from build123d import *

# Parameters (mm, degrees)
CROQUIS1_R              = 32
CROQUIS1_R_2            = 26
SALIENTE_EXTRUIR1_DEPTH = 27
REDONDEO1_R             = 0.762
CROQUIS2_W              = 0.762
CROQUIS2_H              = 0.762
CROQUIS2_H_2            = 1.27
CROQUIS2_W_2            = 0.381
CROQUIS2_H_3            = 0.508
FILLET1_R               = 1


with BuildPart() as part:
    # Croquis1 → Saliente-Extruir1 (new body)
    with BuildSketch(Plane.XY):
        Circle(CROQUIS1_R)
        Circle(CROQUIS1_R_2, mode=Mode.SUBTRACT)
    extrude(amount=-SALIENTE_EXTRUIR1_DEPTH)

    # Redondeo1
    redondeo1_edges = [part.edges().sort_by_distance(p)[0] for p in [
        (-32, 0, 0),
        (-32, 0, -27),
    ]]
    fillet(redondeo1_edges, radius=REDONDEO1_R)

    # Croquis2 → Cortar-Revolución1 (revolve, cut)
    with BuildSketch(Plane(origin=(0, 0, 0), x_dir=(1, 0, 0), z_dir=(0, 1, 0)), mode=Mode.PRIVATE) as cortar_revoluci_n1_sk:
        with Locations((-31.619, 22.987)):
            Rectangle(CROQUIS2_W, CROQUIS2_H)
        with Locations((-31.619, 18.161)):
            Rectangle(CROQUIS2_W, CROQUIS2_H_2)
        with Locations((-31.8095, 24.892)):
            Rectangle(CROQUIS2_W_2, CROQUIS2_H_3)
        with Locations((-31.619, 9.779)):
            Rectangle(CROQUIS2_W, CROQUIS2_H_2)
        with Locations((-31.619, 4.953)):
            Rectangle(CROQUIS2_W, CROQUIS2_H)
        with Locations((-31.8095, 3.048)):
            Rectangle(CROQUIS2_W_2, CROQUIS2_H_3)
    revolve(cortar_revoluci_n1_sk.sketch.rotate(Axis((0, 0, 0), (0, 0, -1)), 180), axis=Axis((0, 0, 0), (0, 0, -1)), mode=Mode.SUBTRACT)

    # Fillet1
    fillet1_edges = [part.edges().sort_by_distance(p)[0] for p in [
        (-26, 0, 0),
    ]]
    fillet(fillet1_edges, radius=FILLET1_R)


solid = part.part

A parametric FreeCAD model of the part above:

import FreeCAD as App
import Part
import Sketcher
from FreeCAD import Vector
Q = App.Units.Quantity


def edges_at(feature, points):
    """Names of the edges that pass closest to the given points."""
    edges = feature.Shape.Edges
    near = lambda p: min(range(len(edges)), key=lambda i: edges[i].distToShape(Part.Vertex(*p))[0])
    return sorted({f"Edge{near(p) + 1}" for p in points})

doc = App.newDocument("Part")
params = doc.addObject("Spreadsheet::Sheet", "Params")
for row, (alias, value) in enumerate([
    ("sketch1_diameter", "64 mm"),
    ("sketch1_diameter2", "52 mm"),
    ("pad1_length", "27 mm"),
    ("fillet_radius", "0.762 mm"),
    ("sketch2_height", "1.27 mm"),
    ("groove_angle", "360 deg"),
    ("fillet2_radius", "1 mm"),
], start=1):
    params.set(f"A{row}", alias)
    params.set(f"B{row}", "=" + value)
    params.setAlias(f"B{row}", alias)

body = doc.addObject("PartDesign::Body", "Body")

sketch1 = body.newObject("Sketcher::SketchObject", "Sketch")
sketch1.AttachmentSupport = (doc.getObject("XY_Plane"), [""])
sketch1.MapMode = "FlatFace"
sketch1.addGeometry(Part.Circle(Vector(0, 0, 0), Vector(0, 0, 1), 32), False)
sketch1.addGeometry(Part.Circle(Vector(0, 0, 0), Vector(0, 0, 1), 26), False)
sketch1.addConstraint(Sketcher.Constraint("Coincident", 0, 3, -1, 1))
sketch1.addConstraint(Sketcher.Constraint("Coincident", 1, 3, -1, 1))
sketch1.addConstraint(Sketcher.Constraint("Diameter", 0, Q("64 mm")))
sketch1.addConstraint(Sketcher.Constraint("Diameter", 1, Q("52 mm")))
sketch1.setExpression("Constraints[2]", "Params.sketch1_diameter")
sketch1.setExpression("Constraints[3]", "Params.sketch1_diameter2")
pad1 = body.newObject("PartDesign::Pad", "Pad")
pad1.Profile = sketch1
pad1.setExpression("Length", "Params.pad1_length")
pad1.Reversed = True
doc.recompute()

fillet = body.newObject("PartDesign::Fillet", "Fillet")
fillet.Base = (pad1, edges_at(pad1, [(-32, 0, 0), (-32, 0, -27)]))
fillet.setExpression("Radius", "Params.fillet_radius")

sketch2 = body.newObject("Sketcher::SketchObject", "Sketch001")
sketch2.AttachmentSupport = (doc.getObject("XZ_Plane"), [""])
sketch2.MapMode = "FlatFace"
sketch2.addGeometry(Part.LineSegment(Vector(-32, -23.37, 0), Vector(-32, -22.61, 0)), False)
sketch2.addGeometry(Part.LineSegment(Vector(-32, -22.61, 0), Vector(-31.24, -22.61, 0)), False)
sketch2.addGeometry(Part.LineSegment(Vector(-31.24, -22.61, 0), Vector(-31.24, -23.37, 0)), False)
sketch2.addGeometry(Part.LineSegment(Vector(-31.24, -23.37, 0), Vector(-32, -23.37, 0)), False)
sketch2.addGeometry(Part.LineSegment(Vector(-32, -18.8, 0), Vector(-32, -17.53, 0)), False)
sketch2.addGeometry(Part.LineSegment(Vector(-32, -17.53, 0), Vector(-31.24, -17.53, 0)), False)
sketch2.addGeometry(Part.LineSegment(Vector(-31.24, -17.53, 0), Vector(-31.24, -18.8, 0)), False)
sketch2.addGeometry(Part.LineSegment(Vector(-31.24, -18.8, 0), Vector(-32, -18.8, 0)), False)
sketch2.addGeometry(Part.LineSegment(Vector(-32, -25.15, 0), Vector(-32, -24.64, 0)), False)
sketch2.addGeometry(Part.LineSegment(Vector(-32, -24.64, 0), Vector(-31.62, -24.64, 0)), False)
sketch2.addGeometry(Part.LineSegment(Vector(-31.62, -24.64, 0), Vector(-31.62, -25.15, 0)), False)
sketch2.addGeometry(Part.LineSegment(Vector(-31.62, -25.15, 0), Vector(-32, -25.15, 0)), False)
sketch2.addGeometry(Part.LineSegment(Vector(-32, -10.41, 0), Vector(-32, -9.14, 0)), False)
sketch2.addGeometry(Part.LineSegment(Vector(-32, -9.14, 0), Vector(-31.24, -9.14, 0)), False)
sketch2.addGeometry(Part.LineSegment(Vector(-31.24, -9.14, 0), Vector(-31.24, -10.41, 0)), False)
sketch2.addGeometry(Part.LineSegment(Vector(-31.24, -10.41, 0), Vector(-32, -10.41, 0)), False)
sketch2.addGeometry(Part.LineSegment(Vector(-32, -5.33, 0), Vector(-32, -4.57, 0)), False)
sketch2.addGeometry(Part.LineSegment(Vector(-32, -4.57, 0), Vector(-31.24, -4.57, 0)), False)
sketch2.addGeometry(Part.LineSegment(Vector(-31.24, -4.57, 0), Vector(-31.24, -5.33, 0)), False)
sketch2.addGeometry(Part.LineSegment(Vector(-31.24, -5.33, 0), Vector(-32, -5.33, 0)), False)
sketch2.addGeometry(Part.LineSegment(Vector(-32, -3.3, 0), Vector(-32, -2.79, 0)), False)
sketch2.addGeometry(Part.LineSegment(Vector(-32, -2.79, 0), Vector(-31.62, -2.79, 0)), False)
sketch2.addGeometry(Part.LineSegment(Vector(-31.62, -2.79, 0), Vector(-31.62, -3.3, 0)), False)
sketch2.addGeometry(Part.LineSegment(Vector(-31.62, -3.3, 0), Vector(-32, -3.3, 0)), False)
sketch2.addConstraint(Sketcher.Constraint("Coincident", 0, 2, 1, 1))
sketch2.addConstraint(Sketcher.Constraint("Coincident", 1, 2, 2, 1))
sketch2.addConstraint(Sketcher.Constraint("Coincident", 2, 2, 3, 1))
sketch2.addConstraint(Sketcher.Constraint("Coincident", 3, 2, 0, 1))
sketch2.addConstraint(Sketcher.Constraint("Coincident", 4, 2, 5, 1))
sketch2.addConstraint(Sketcher.Constraint("Coincident", 5, 2, 6, 1))
sketch2.addConstraint(Sketcher.Constraint("Coincident", 6, 2, 7, 1))
sketch2.addConstraint(Sketcher.Constraint("Coincident", 7, 2, 4, 1))
sketch2.addConstraint(Sketcher.Constraint("Coincident", 8, 2, 9, 1))
sketch2.addConstraint(Sketcher.Constraint("Coincident", 9, 2, 10, 1))
sketch2.addConstraint(Sketcher.Constraint("Coincident", 10, 2, 11, 1))
sketch2.addConstraint(Sketcher.Constraint("Coincident", 11, 2, 8, 1))
sketch2.addConstraint(Sketcher.Constraint("Coincident", 12, 2, 13, 1))
sketch2.addConstraint(Sketcher.Constraint("Coincident", 13, 2, 14, 1))
sketch2.addConstraint(Sketcher.Constraint("Coincident", 14, 2, 15, 1))
sketch2.addConstraint(Sketcher.Constraint("Coincident", 15, 2, 12, 1))
sketch2.addConstraint(Sketcher.Constraint("Coincident", 16, 2, 17, 1))
sketch2.addConstraint(Sketcher.Constraint("Coincident", 17, 2, 18, 1))
sketch2.addConstraint(Sketcher.Constraint("Coincident", 18, 2, 19, 1))
sketch2.addConstraint(Sketcher.Constraint("Coincident", 19, 2, 16, 1))
sketch2.addConstraint(Sketcher.Constraint("Coincident", 20, 2, 21, 1))
sketch2.addConstraint(Sketcher.Constraint("Coincident", 21, 2, 22, 1))
sketch2.addConstraint(Sketcher.Constraint("Coincident", 22, 2, 23, 1))
sketch2.addConstraint(Sketcher.Constraint("Coincident", 23, 2, 20, 1))
sketch2.addConstraint(Sketcher.Constraint("Vertical", 0))
sketch2.addConstraint(Sketcher.Constraint("Horizontal", 1))
sketch2.addConstraint(Sketcher.Constraint("Vertical", 2))
sketch2.addConstraint(Sketcher.Constraint("Horizontal", 3))
sketch2.addConstraint(Sketcher.Constraint("Vertical", 4))
sketch2.addConstraint(Sketcher.Constraint("Horizontal", 5))
sketch2.addConstraint(Sketcher.Constraint("Vertical", 6))
sketch2.addConstraint(Sketcher.Constraint("Horizontal", 7))
sketch2.addConstraint(Sketcher.Constraint("Vertical", 8))
sketch2.addConstraint(Sketcher.Constraint("Horizontal", 9))
sketch2.addConstraint(Sketcher.Constraint("Vertical", 10))
sketch2.addConstraint(Sketcher.Constraint("Horizontal", 11))
sketch2.addConstraint(Sketcher.Constraint("Vertical", 12))
sketch2.addConstraint(Sketcher.Constraint("Horizontal", 13))
sketch2.addConstraint(Sketcher.Constraint("Vertical", 14))
sketch2.addConstraint(Sketcher.Constraint("Horizontal", 15))
sketch2.addConstraint(Sketcher.Constraint("Vertical", 16))
sketch2.addConstraint(Sketcher.Constraint("Horizontal", 17))
sketch2.addConstraint(Sketcher.Constraint("Vertical", 18))
sketch2.addConstraint(Sketcher.Constraint("Horizontal", 19))
sketch2.addConstraint(Sketcher.Constraint("Vertical", 20))
sketch2.addConstraint(Sketcher.Constraint("Horizontal", 21))
sketch2.addConstraint(Sketcher.Constraint("Vertical", 22))
sketch2.addConstraint(Sketcher.Constraint("Horizontal", 23))
sketch2.addConstraint(Sketcher.Constraint("Vertical", 3, 2, 4, 2))
sketch2.addConstraint(Sketcher.Constraint("Vertical", 2, 2, 5, 2))
sketch2.addConstraint(Sketcher.Constraint("Vertical", 7, 2, 8, 2))
sketch2.addConstraint(Sketcher.Constraint("Vertical", 11, 2, 12, 2))
sketch2.addConstraint(Sketcher.Constraint("Vertical", 6, 2, 13, 2))
sketch2.addConstraint(Sketcher.Constraint("Vertical", 15, 2, 16, 2))
sketch2.addConstraint(Sketcher.Constraint("Vertical", 14, 2, 17, 2))
sketch2.addConstraint(Sketcher.Constraint("Vertical", 19, 2, 20, 2))
sketch2.addConstraint(Sketcher.Constraint("Vertical", 10, 2, 21, 2))
sketch2.addConstraint(Sketcher.Constraint("Equal", 19, 0))
sketch2.addConstraint(Sketcher.Constraint("Equal", 6, 12))
sketch2.addConstraint(Sketcher.Constraint("Equal", 2, 16))
sketch2.addConstraint(Sketcher.Constraint("Equal", 10, 20))
sketch2.addConstraint(Sketcher.Constraint("DistanceX", 0, 2, -1, 1, Q("32 mm")))
sketch2.addConstraint(Sketcher.Constraint("DistanceY", 4, 1, 4, 2, Q("1.27 mm")))
sketch2.addConstraint(Sketcher.Constraint("DistanceX", 1, 1, 1, 2, Q("0.762 mm")))
sketch2.addConstraint(Sketcher.Constraint("DistanceX", 9, 1, 9, 2, Q("0.381 mm")))
sketch2.addConstraint(Sketcher.Constraint("DistanceY", 8, 1, 8, 2, Q("0.508 mm")))
sketch2.addConstraint(Sketcher.Constraint("DistanceY", 0, 2, 4, 2, Q("5.08 mm")))
sketch2.addConstraint(Sketcher.Constraint("DistanceY", 8, 2, 3, 2, Q("1.27 mm")))
sketch2.addConstraint(Sketcher.Constraint("DistanceY", 13, 2, 18, 2, Q("3.81 mm")))
sketch2.addConstraint(Sketcher.Constraint("DistanceY", 19, 2, 20, 2, Q("2.54 mm")))
sketch2.addConstraint(Sketcher.Constraint("DistanceY", 0, 2, -1, 1, Q("22.606 mm")))
sketch2.addConstraint(Sketcher.Constraint("DistanceY", 12, 2, -1, 1, Q("9.144 mm")))
sketch2.setExpression("Constraints[62]", "Params.sketch2_height")
groove = body.newObject("PartDesign::Groove", "Groove")
groove.Profile = sketch2
groove.ReferenceAxis = (sketch2, ["V_Axis"])
groove.setExpression("Angle", "Params.groove_angle")
doc.recompute()

fillet2 = body.newObject("PartDesign::Fillet", "Fillet001")
fillet2.Base = (groove, edges_at(groove, [(-26, 0, 0)]))
fillet2.setExpression("Radius", "Params.fillet2_radius")

doc.recompute()
